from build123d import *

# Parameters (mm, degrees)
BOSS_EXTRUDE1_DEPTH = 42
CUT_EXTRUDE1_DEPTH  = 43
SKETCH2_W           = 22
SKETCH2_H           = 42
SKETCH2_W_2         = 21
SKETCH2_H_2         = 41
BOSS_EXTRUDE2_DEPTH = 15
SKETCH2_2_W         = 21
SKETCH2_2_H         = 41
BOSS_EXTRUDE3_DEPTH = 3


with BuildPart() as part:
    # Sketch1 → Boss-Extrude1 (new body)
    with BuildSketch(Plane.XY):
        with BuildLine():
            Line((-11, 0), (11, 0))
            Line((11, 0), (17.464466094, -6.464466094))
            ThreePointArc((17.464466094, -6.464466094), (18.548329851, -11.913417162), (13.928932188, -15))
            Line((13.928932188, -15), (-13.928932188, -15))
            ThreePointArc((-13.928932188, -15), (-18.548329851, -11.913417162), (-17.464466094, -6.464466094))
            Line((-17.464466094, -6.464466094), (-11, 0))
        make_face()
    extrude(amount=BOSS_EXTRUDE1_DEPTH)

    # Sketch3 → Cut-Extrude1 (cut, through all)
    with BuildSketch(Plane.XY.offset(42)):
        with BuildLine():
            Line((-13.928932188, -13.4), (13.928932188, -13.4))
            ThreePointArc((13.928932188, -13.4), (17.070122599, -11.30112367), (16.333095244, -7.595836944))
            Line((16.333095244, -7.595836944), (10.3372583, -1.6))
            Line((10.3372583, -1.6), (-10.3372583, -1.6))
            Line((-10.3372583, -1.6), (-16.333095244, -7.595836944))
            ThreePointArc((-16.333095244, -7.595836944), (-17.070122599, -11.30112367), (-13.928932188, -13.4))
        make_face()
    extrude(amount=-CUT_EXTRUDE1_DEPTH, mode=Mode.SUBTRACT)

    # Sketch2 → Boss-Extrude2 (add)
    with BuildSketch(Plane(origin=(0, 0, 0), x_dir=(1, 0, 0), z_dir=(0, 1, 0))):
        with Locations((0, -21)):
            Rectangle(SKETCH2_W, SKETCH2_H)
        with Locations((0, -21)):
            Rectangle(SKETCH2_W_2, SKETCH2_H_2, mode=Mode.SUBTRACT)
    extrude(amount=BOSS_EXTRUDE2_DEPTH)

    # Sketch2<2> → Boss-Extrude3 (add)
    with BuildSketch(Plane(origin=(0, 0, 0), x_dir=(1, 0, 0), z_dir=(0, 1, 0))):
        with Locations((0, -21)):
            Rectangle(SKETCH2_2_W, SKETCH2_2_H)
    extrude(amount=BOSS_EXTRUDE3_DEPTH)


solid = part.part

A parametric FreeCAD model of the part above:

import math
import FreeCAD as App
import Part
import Sketcher

V = App.Vector
Q = App.Units.Quantity


def add_polygon(sketch, points):
    """Adds a closed chain of lines whose ends are joined by coincident constraints."""
    first, n = sketch.GeometryCount, len(points)
    for a, b in zip(points, points[1:] + points[:1]):
        sketch.addGeometry(Part.LineSegment(App.Vector(*a, 0), App.Vector(*b, 0)), False)
    for i in range(n):
        sketch.addConstraint(Sketcher.Constraint("Coincident", first + i, 2, first + (i + 1) % n, 1))

doc = App.newDocument("Part")
body = doc.addObject("PartDesign::Body", "Body")

sketch1 = body.newObject("Sketcher::SketchObject", "Sketch")
sketch1.AttachmentSupport = (doc.getObject("XY_Plane"), [""])
sketch1.MapMode = "FlatFace"
sketch1.addGeometry(Part.LineSegment(V(11, 0, 0), V(-11, 0, 0)), False)
sketch1.addGeometry(Part.LineSegment(V(-11, 0, 0), V(-17.464466, -6.464466, 0)), False)
sketch1.addGeometry(Part.ArcOfCircle(Part.Circle(V(-13.928932, -10, 0), V(0, 0, 1), 5), math.radians(135), math.radians(270)), False)
sketch1.addGeometry(Part.LineSegment(V(-13.928932, -15, 0), V(13.928932, -15, 0)), False)
sketch1.addGeometry(Part.ArcOfCircle(Part.Circle(V(13.928932, -10, 0), V(0, 0, 1), 5), math.radians(-90), math.radians(45)), False)
sketch1.addGeometry(Part.LineSegment(V(17.464466, -6.464466, 0), V(11, 0, 0)), False)
sketch1.addConstraint(Sketcher.Constraint("Coincident", 0, 2, 1, 1))
sketch1.addConstraint(Sketcher.Constraint("Tangent", 1, 2, 2, 1))
sketch1.addConstraint(Sketcher.Constraint("Tangent", 2, 2, 3, 1))
sketch1.addConstraint(Sketcher.Constraint("Tangent", 3, 2, 4, 1))
sketch1.addConstraint(Sketcher.Constraint("Tangent", 4, 2, 5, 1))
sketch1.addConstraint(Sketcher.Constraint("Coincident", 5, 2, 0, 1))
sketch1.addConstraint(Sketcher.Constraint("Horizontal", 0))
sketch1.addConstraint(Sketcher.Constraint("Horizontal", 3))
sketch1.addConstraint(Sketcher.Constraint("Equal", 2, 4))
sketch1.addConstraint(Sketcher.Constraint("Symmetric", 0, 2, 5, 2, -1, 1))
sketch1.addConstraint(Sketcher.Constraint("Perpendicular", 1, 5))
sketch1.addConstraint(Sketcher.Constraint("Horizontal", 1, 2, 4, 2))
sketch1.addConstraint(Sketcher.Constraint("Radius", 2, Q("5 mm")))
sketch1.addConstraint(Sketcher.Constraint("DistanceX", 0, 2, 0, 1, Q("22 mm")))
sketch1.addConstraint(Sketcher.Constraint("DistanceY", 2, 3, -1, 1, Q("10 mm")))
pad1 = body.newObject("PartDesign::Pad", "Pad")
pad1.Profile = sketch1
pad1.Length = 42

sketch2 = body.newObject("Sketcher::SketchObject", "Sketch001")
sketch2.AttachmentSupport = (doc.getObject("XY_Plane"), [""])
sketch2.MapMode = "FlatFace"
sketch2.AttachmentOffset = App.Placement(V(0, 0, 42), App.Rotation())
sketch2.addGeometry(Part.LineSegment(V(-13.928932, -13.4, 0), V(13.928932, -13.4, 0)), False)
sketch2.addGeometry(Part.ArcOfCircle(Part.Circle(V(13.928932, -10, 0), V(0, 0, 1), 3.4), math.radians(-90), math.radians(45)), False)
sketch2.addGeometry(Part.LineSegment(V(16.333095, -7.595837, 0), V(10.337258, -1.6, 0)), False)
sketch2.addGeometry(Part.LineSegment(V(10.337258, -1.6, 0), V(-10.337258, -1.6, 0)), False)
sketch2.addGeometry(Part.LineSegment(V(-10.337258, -1.6, 0), V(-16.333095, -7.595837, 0)), False)
sketch2.addGeometry(Part.ArcOfCircle(Part.Circle(V(-13.928932, -10, 0), V(0, 0, 1), 3.4), math.radians(135), math.radians(270)), False)
sketch2.addConstraint(Sketcher.Constraint("Tangent", 0, 2, 1, 1))
sketch2.addConstraint(Sketcher.Constraint("Tangent", 1, 2, 2, 1))
sketch2.addConstraint(Sketcher.Constraint("Coincident", 2, 2, 3, 1))
sketch2.addConstraint(Sketcher.Constraint("Coincident", 3, 2, 4, 1))
sketch2.addConstraint(Sketcher.Constraint("Tangent", 4, 2, 5, 1))
sketch2.addConstraint(Sketcher.Constraint("Tangent", 5, 2, 0, 1))
sketch2.addConstraint(Sketcher.Constraint("Horizontal", 0))
sketch2.addConstraint(Sketcher.Constraint("Horizontal", 3))
sketch2.addConstraint(Sketcher.Constraint("Equal", 1, 5))
sketch2.addConstraint(Sketcher.Constraint("Symmetric", 1, 2, 4, 2, -2))
sketch2.addConstraint(Sketcher.Constraint("Perpendicular", 2, 4))
sketch2.addConstraint(Sketcher.Constraint("Radius", 1, Q("3.4 mm")))
sketch2.addConstraint(Sketcher.Constraint("DistanceY", 1, 3, -1, 1, Q("10 mm")))
sketch2.addConstraint(Sketcher.Constraint("DistanceY", 2, 2, -1, 1, Q("1.6 mm")))
sketch2.addConstraint(Sketcher.Constraint("DistanceX", 0, 1, 0, 2, Q("27.857864 mm")))
pocket1 = body.newObject("PartDesign::Pocket", "Pocket")
pocket1.Profile = sketch2
pocket1.Type = "ThroughAll"

sketch3 = body.newObject("Sketcher::SketchObject", "Sketch002")
sketch3.AttachmentSupport = (doc.getObject("XZ_Plane"), [""])
sketch3.MapMode = "FlatFace"
add_polygon(sketch3, [(-11, 0), (-11, 42), (11, 42), (11, 0)])
add_polygon(sketch3, [(10.5, 41.5), (-10.5, 41.5), (-10.5, 0.5), (10.5, 0.5)])
sketch3.addConstraint(Sketcher.Constraint("Vertical", 0))
sketch3.addConstraint(Sketcher.Constraint("Horizontal", 1))
sketch3.addConstraint(Sketcher.Constraint("Vertical", 2))
sketch3.addConstraint(Sketcher.Constraint("Horizontal", 3))
sketch3.addConstraint(Sketcher.Constraint("Horizontal", 4))
sketch3.addConstraint(Sketcher.Constraint("Vertical", 5))
sketch3.addConstraint(Sketcher.Constraint("Horizontal", 6))
sketch3.addConstraint(Sketcher.Constraint("Vertical", 7))
sketch3.addConstraint(Sketcher.Constraint("Symmetric", 2, 2, 3, 2, -1, 1))
sketch3.addConstraint(Sketcher.Constraint("DistanceX", 1, 1, 1, 2, Q("22 mm")))
sketch3.addConstraint(Sketcher.Constraint("DistanceX", 4, 2, 4, 1, Q("21 mm")))
sketch3.addConstraint(Sketcher.Constraint("DistanceY", 0, 1, 0, 2, Q("42 mm")))
sketch3.addConstraint(Sketcher.Constraint("DistanceY", 5, 2, 5, 1, Q("41 mm")))
sketch3.addConstraint(Sketcher.Constraint("DistanceX", 4, 2, -1, 1, Q("10.5 mm")))
sketch3.addConstraint(Sketcher.Constraint("DistanceY", -1, 1, 4, 2, Q("41.5 mm")))
pad2 = body.newObject("PartDesign::Pad", "Pad001")
pad2.Profile = sketch3
pad2.Length = 15
pad2.Reversed = True

sketch4 = body.newObject("Sketcher::SketchObject", "Sketch003")
sketch4.AttachmentSupport = (doc.getObject("XZ_Plane"), [""])
sketch4.MapMode = "FlatFace"
add_polygon(sketch4, [(-10.5, 0.5), (-10.5, 41.5), (10.5, 41.5), (10.5, 0.5)])
sketch4.addConstraint(Sketcher.Constraint("Vertical", 0))
sketch4.addConstraint(Sketcher.Constraint("Horizontal", 1))
sketch4.addConstraint(Sketcher.Constraint("Vertical", 2))
sketch4.addConstraint(Sketcher.Constraint("Horizontal", 3))
sketch4.addConstraint(Sketcher.Constraint("DistanceX", 1, 1, 1, 2, Q("21 mm")))
sketch4.addConstraint(Sketcher.Constraint("DistanceY", 0, 1, 0, 2, Q("41 mm")))
sketch4.addConstraint(Sketcher.Constraint("DistanceX", 0, 2, -1, 1, Q("10.5 mm")))
sketch4.addConstraint(Sketcher.Constraint("DistanceY", -1, 1, 0, 2, Q("41.5 mm")))
pad3 = body.newObject("PartDesign::Pad", "Pad002")
pad3.Profile = sketch4
pad3.Length = 3
pad3.Reversed = True

doc.recompute()
